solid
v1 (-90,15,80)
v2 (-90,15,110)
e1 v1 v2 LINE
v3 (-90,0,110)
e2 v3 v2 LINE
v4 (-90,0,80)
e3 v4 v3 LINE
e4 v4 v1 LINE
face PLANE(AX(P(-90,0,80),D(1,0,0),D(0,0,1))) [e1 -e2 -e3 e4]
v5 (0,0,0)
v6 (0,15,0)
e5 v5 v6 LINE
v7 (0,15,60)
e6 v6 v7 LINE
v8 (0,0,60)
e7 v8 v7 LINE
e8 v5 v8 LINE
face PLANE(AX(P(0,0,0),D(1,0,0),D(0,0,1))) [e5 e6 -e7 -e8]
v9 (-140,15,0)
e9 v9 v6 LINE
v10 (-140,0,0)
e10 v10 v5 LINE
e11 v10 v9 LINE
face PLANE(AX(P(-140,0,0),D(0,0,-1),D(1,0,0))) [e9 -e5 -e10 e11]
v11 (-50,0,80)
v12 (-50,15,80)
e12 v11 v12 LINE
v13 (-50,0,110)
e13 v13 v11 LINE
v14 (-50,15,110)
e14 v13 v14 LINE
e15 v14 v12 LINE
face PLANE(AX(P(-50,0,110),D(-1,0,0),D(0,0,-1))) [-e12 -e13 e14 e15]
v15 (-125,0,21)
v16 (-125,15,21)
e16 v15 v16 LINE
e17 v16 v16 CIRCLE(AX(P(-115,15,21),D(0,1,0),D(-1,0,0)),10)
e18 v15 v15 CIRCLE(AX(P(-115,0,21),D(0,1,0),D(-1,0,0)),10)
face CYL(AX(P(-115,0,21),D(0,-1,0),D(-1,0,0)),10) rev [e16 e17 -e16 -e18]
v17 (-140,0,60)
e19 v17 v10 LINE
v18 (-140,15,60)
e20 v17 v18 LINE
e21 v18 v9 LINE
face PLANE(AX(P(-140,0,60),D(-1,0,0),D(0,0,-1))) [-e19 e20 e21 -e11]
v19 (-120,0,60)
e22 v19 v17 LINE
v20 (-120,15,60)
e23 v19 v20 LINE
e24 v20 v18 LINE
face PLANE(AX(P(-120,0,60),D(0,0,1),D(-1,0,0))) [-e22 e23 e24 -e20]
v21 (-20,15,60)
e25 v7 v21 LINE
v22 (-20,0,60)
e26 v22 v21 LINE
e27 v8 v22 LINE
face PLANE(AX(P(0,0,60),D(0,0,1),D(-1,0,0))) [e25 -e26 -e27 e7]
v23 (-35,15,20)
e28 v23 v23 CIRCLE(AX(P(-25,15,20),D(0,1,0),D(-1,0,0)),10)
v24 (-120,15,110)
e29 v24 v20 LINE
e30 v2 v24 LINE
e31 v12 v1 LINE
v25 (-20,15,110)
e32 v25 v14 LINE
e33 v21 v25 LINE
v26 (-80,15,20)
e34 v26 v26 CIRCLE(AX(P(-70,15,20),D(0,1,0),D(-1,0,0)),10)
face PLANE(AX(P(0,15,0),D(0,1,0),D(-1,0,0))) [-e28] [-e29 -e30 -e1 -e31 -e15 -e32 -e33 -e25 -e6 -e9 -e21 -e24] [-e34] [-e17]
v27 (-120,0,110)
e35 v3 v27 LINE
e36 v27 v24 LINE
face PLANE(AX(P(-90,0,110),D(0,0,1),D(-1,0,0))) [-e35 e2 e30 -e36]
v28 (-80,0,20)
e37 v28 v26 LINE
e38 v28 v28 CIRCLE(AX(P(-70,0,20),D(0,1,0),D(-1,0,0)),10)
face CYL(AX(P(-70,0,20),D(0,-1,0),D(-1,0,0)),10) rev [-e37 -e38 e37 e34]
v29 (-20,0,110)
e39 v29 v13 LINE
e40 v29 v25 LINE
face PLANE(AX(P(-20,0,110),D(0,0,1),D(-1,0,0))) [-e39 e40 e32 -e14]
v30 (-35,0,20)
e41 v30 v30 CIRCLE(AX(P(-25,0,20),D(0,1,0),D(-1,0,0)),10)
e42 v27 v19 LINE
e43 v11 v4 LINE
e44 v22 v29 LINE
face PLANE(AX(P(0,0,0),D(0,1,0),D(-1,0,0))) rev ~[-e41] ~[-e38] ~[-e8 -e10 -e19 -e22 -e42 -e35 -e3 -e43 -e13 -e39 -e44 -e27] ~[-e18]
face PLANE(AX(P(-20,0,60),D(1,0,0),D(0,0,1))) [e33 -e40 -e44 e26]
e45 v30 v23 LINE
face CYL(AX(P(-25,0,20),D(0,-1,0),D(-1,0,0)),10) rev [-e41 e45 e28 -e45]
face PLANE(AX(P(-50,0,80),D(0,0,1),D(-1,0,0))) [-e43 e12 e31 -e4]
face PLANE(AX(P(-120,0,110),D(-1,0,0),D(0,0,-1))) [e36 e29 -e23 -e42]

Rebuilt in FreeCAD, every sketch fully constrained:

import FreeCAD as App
import Part
import Sketcher

doc = App.newDocument("Part")
body = doc.addObject("PartDesign::Body", "Body")

# Sketch on XZ plane
sketch1 = body.newObject("Sketcher::SketchObject", "Sketch")
sketch1.AttachmentSupport = (doc.getObject("XZ_Plane"), [""])
sketch1.MapMode = "FlatFace"
sketch1.addGeometry(Part.LineSegment(App.Vector(0, 60, 0), App.Vector(0, 0, 0)), False)
sketch1.addGeometry(Part.LineSegment(App.Vector(0, 0, 0), App.Vector(-140, 0, 0)), False)
sketch1.addGeometry(Part.LineSegment(App.Vector(-140, 0, 0), App.Vector(-140, 60, 0)), False)
sketch1.addGeometry(Part.LineSegment(App.Vector(-140, 60, 0), App.Vector(-120, 60, 0)), False)
sketch1.addGeometry(Part.LineSegment(App.Vector(-120, 60, 0), App.Vector(-120, 110, 0)), False)
sketch1.addGeometry(Part.LineSegment(App.Vector(-120, 110, 0), App.Vector(-90, 110, 0)), False)
sketch1.addGeometry(Part.LineSegment(App.Vector(-90, 110, 0), App.Vector(-90, 80, 0)), False)
sketch1.addGeometry(Part.LineSegment(App.Vector(-90, 80, 0), App.Vector(-50, 80, 0)), False)
sketch1.addGeometry(Part.LineSegment(App.Vector(-50, 80, 0), App.Vector(-50, 110, 0)), False)
sketch1.addGeometry(Part.LineSegment(App.Vector(-50, 110, 0), App.Vector(-20, 110, 0)), False)
sketch1.addGeometry(Part.LineSegment(App.Vector(-20, 110, 0), App.Vector(-20, 60, 0)), False)
sketch1.addGeometry(Part.LineSegment(App.Vector(-20, 60, 0), App.Vector(0, 60, 0)), False)
sketch1.addGeometry(Part.Circle(App.Vector(-25, 20, 0), App.Vector(0, 0, 1), 10), False)
sketch1.addGeometry(Part.Circle(App.Vector(-70, 20, 0), App.Vector(0, 0, 1), 10), False)
sketch1.addGeometry(Part.Circle(App.Vector(-115, 21, 0), App.Vector(0, 0, 1), 10), False)
sketch1.addConstraint(Sketcher.Constraint("Coincident", 0, 2, 1, 1))
sketch1.addConstraint(Sketcher.Constraint("Coincident", 1, 2, 2, 1))
sketch1.addConstraint(Sketcher.Constraint("Coincident", 2, 2, 3, 1))
sketch1.addConstraint(Sketcher.Constraint("Coincident", 3, 2, 4, 1))
sketch1.addConstraint(Sketcher.Constraint("Coincident", 4, 2, 5, 1))
sketch1.addConstraint(Sketcher.Constraint("Coincident", 5, 2, 6, 1))
sketch1.addConstraint(Sketcher.Constraint("Coincident", 6, 2, 7, 1))
sketch1.addConstraint(Sketcher.Constraint("Coincident", 7, 2, 8, 1))
sketch1.addConstraint(Sketcher.Constraint("Coincident", 8, 2, 9, 1))
sketch1.addConstraint(Sketcher.Constraint("Coincident", 9, 2, 10, 1))
sketch1.addConstraint(Sketcher.Constraint("Coincident", 10, 2, 11, 1))
sketch1.addConstraint(Sketcher.Constraint("Coincident", 11, 2, 0, 1))
sketch1.addConstraint(Sketcher.Constraint("Vertical", 0))
sketch1.addConstraint(Sketcher.Constraint("Horizontal", 1))
sketch1.addConstraint(Sketcher.Constraint("Vertical", 2))
sketch1.addConstraint(Sketcher.Constraint("Horizontal", 3))
sketch1.addConstraint(Sketcher.Constraint("Vertical", 4))
sketch1.addConstraint(Sketcher.Constraint("Horizontal", 5))
sketch1.addConstraint(Sketcher.Constraint("Vertical", 6))
sketch1.addConstraint(Sketcher.Constraint("Horizontal", 7))
sketch1.addConstraint(Sketcher.Constraint("Vertical", 8))
sketch1.addConstraint(Sketcher.Constraint("Horizontal", 9))
sketch1.addConstraint(Sketcher.Constraint("Vertical", 10))
sketch1.addConstraint(Sketcher.Constraint("Horizontal", 11))
sketch1.addConstraint(Sketcher.Constraint("Coincident", 0, 2, -1, 1))
sketch1.addConstraint(Sketcher.Constraint("Equal", 12, 13))
sketch1.addConstraint(Sketcher.Constraint("Equal", 13, 14))
sketch1.addConstraint(Sketcher.Constraint("Horizontal", 12, 3, 13, 3))
sketch1.addConstraint(Sketcher.Constraint("Horizontal", 5, 2, 8, 2))
sketch1.addConstraint(Sketcher.Constraint("Horizontal", 3, 2, 10, 2))
sketch1.addConstraint(Sketcher.Constraint("Equal", 5, 9))
sketch1.addConstraint(Sketcher.Constraint("Equal", 3, 11))
sketch1.addConstraint(Sketcher.Constraint("Equal", 9, 6))
sketch1.addConstraint(Sketcher.Constraint("Diameter", 12, 20.0))
sketch1.addConstraint(Sketcher.Constraint("DistanceX", 3, 1, 3, 2, 20.0))
sketch1.addConstraint(Sketcher.Constraint("DistanceY", 4, 1, 4, 2, 50.0))
sketch1.addConstraint(Sketcher.Constraint("DistanceY", -1, 1, 12, 3, 20.0))
sketch1.addConstraint(Sketcher.Constraint("DistanceX", 7, 2, -1, 1, 50.0))
sketch1.addConstraint(Sketcher.Constraint("DistanceX", 3, 2, 13, 3, 50.0))
sketch1.addConstraint(Sketcher.Constraint("DistanceX", 13, 3, 7, 2, 20.0))
sketch1.addConstraint(Sketcher.Constraint("DistanceY", 0, 2, 0, 1, 60.0))
sketch1.addConstraint(Sketcher.Constraint("DistanceX", 12, 3, -1, 1, 25.0))
sketch1.addConstraint(Sketcher.Constraint("DistanceX", 14, 3, -1, 1, 115.0))
sketch1.addConstraint(Sketcher.Constraint("DistanceY", -1, 1, 14, 3, 21.0))
pad1 = body.newObject("PartDesign::Pad", "Pad")
pad1.Profile = sketch1
pad1.Length = 15
pad1.Reversed = True

doc.recompute()
